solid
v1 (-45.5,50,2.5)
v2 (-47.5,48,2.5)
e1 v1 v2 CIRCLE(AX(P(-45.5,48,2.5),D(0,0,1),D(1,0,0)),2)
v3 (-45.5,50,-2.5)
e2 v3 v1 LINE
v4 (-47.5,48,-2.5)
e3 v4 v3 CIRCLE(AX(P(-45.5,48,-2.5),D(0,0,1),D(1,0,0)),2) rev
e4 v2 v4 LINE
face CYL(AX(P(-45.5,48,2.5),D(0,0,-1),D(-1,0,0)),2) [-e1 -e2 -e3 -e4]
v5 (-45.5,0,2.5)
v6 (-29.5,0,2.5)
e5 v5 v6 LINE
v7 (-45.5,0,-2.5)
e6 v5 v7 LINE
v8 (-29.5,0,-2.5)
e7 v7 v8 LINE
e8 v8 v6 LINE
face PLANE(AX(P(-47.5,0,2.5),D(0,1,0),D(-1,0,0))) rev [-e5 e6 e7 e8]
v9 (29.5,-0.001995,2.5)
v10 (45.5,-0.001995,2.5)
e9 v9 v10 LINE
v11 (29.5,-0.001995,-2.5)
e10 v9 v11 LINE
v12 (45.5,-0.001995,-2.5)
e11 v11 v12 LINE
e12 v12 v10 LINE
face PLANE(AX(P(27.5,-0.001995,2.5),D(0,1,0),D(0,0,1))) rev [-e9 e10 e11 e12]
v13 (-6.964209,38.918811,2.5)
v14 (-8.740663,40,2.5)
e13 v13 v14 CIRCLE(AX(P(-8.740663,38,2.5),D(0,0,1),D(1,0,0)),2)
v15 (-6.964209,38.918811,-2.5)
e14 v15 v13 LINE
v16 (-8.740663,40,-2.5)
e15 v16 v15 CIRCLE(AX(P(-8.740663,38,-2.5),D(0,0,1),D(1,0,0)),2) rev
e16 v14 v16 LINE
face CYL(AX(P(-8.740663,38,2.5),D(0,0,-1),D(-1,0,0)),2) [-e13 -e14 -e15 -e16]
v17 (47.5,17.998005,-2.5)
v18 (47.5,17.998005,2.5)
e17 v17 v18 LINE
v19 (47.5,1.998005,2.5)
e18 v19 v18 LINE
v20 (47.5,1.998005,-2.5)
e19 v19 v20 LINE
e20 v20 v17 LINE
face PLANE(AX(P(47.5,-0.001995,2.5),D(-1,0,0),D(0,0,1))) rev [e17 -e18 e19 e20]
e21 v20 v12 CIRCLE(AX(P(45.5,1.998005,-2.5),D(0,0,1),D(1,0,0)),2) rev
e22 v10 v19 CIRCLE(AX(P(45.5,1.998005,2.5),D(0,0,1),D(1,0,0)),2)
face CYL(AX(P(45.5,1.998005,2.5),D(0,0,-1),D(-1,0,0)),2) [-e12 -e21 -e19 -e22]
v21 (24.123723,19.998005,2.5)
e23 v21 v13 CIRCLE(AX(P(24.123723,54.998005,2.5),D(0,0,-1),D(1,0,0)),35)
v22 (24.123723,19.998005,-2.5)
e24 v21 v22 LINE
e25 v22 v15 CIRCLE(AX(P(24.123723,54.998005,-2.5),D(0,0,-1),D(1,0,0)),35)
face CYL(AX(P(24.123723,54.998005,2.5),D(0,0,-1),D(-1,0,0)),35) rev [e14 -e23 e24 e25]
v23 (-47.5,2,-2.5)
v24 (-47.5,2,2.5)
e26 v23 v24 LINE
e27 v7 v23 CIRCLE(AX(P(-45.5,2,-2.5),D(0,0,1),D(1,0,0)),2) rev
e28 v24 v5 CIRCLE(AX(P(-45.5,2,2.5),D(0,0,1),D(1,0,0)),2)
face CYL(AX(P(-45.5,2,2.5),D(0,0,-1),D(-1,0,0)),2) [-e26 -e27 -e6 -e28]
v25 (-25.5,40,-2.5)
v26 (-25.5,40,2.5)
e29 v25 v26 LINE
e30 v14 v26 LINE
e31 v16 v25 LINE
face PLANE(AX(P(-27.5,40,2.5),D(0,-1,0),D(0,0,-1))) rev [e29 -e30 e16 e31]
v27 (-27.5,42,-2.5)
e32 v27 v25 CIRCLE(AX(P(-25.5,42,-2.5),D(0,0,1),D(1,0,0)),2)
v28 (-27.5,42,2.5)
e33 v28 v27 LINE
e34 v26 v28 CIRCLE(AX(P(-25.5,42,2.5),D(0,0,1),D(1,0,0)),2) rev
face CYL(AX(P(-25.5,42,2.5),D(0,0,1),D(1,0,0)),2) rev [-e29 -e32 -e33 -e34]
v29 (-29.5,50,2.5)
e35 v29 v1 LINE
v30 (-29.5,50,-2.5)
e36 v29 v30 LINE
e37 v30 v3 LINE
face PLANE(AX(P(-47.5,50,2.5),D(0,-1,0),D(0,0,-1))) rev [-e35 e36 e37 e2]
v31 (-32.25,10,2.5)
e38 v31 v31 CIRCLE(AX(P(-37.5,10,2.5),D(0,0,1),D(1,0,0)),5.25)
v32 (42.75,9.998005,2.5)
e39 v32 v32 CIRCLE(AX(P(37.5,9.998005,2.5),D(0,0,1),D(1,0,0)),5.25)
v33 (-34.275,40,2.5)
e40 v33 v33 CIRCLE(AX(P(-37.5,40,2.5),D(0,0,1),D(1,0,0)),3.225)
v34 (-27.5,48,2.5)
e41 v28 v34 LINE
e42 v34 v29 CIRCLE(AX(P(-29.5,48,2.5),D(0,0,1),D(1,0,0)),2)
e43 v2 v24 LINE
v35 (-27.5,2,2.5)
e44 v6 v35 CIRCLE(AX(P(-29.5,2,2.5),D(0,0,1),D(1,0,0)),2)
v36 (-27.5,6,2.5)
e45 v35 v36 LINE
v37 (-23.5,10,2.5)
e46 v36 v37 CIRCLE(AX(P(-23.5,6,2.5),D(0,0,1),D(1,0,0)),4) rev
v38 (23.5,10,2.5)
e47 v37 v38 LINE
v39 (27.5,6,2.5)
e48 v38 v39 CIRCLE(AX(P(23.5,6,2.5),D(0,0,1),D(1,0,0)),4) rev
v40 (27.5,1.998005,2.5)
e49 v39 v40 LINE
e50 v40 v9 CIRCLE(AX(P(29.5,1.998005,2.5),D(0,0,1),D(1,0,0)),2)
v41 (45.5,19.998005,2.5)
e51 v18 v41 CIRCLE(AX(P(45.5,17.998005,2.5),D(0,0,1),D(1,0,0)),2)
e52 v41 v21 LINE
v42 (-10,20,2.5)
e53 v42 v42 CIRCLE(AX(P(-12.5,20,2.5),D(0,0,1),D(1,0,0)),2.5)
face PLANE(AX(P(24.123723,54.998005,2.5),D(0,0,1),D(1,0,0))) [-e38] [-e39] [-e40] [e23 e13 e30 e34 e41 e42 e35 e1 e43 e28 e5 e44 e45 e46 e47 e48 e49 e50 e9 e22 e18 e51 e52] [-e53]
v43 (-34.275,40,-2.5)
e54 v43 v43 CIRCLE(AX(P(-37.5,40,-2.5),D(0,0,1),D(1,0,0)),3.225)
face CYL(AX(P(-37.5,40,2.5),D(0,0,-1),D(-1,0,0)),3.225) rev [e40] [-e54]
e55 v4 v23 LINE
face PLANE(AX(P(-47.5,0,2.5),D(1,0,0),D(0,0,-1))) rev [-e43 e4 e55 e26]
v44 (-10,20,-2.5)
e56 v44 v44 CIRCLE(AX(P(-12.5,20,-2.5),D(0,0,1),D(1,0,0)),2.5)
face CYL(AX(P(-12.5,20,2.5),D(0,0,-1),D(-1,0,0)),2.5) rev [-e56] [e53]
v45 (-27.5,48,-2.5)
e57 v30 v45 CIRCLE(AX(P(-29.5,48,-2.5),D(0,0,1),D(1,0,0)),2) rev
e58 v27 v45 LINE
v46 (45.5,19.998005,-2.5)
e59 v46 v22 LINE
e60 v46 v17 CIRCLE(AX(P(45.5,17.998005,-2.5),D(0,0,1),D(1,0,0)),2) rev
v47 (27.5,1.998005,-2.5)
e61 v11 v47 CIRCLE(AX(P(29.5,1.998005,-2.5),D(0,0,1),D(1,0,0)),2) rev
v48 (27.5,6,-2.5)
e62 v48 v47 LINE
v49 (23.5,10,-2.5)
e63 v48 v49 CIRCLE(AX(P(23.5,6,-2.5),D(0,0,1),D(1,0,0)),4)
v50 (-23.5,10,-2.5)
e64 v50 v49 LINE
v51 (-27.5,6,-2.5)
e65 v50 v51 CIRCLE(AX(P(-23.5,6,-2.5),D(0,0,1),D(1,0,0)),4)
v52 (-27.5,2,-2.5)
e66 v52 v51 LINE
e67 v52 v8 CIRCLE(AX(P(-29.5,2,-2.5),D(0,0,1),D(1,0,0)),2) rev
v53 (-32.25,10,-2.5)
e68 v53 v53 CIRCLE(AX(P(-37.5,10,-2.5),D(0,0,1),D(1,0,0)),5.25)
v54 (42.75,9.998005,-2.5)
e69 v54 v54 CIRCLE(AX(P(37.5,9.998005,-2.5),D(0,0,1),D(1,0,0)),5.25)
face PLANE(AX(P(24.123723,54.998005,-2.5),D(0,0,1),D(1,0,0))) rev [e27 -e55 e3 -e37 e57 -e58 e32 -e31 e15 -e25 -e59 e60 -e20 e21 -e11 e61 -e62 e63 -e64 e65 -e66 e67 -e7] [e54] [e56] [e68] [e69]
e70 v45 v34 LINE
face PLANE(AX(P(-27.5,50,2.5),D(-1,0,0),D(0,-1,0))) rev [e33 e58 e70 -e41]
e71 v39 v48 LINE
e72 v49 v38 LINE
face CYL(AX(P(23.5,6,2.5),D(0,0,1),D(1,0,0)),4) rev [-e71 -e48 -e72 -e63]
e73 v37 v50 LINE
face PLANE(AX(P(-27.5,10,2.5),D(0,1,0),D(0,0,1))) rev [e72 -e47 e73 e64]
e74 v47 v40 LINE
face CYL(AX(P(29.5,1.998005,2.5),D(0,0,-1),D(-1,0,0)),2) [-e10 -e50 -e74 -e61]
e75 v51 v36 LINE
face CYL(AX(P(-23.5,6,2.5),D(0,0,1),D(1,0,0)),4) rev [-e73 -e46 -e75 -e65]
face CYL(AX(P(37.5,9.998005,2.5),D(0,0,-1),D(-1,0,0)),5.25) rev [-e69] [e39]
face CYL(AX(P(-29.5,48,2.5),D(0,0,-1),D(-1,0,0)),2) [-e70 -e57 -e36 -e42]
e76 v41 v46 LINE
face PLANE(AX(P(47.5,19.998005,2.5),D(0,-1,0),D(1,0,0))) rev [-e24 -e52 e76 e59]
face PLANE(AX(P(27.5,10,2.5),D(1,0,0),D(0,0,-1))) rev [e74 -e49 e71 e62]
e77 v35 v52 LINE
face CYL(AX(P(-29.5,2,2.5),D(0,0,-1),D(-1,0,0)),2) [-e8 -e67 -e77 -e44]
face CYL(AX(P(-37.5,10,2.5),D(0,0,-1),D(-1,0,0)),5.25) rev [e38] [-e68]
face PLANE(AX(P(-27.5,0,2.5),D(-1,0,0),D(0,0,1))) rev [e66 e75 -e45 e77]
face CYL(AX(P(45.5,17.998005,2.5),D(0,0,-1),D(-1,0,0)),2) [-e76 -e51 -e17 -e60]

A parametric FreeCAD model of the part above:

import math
import FreeCAD as App
import Part
import Sketcher
Q = App.Units.Quantity


def edges_at(feature, points):
    """Names of the edges that pass closest to the given points."""
    edges = feature.Shape.Edges
    near = lambda p: min(range(len(edges)), key=lambda i: edges[i].distToShape(Part.Vertex(*p))[0])
    return sorted({f"Edge{near(p) + 1}" for p in points})

doc = App.newDocument("Part")
body = doc.addObject("PartDesign::Body", "Body")

sketch1 = body.newObject("Sketcher::SketchObject", "Sketch")
sketch1.AttachmentSupport = (doc.getObject("XY_Plane"), [""])
sketch1.MapMode = "FlatFace"
sketch1.addGeometry(Part.LineSegment(App.Vector(-47.5, 50, 0), App.Vector(-47.5, 0, 0)), False)
sketch1.addGeometry(Part.LineSegment(App.Vector(-47.5, 0, 0), App.Vector(-27.5, 0, 0)), False)
sketch1.addGeometry(Part.LineSegment(App.Vector(-27.5, 0, 0), App.Vector(-27.5, 10, 0)), False)
sketch1.addGeometry(Part.LineSegment(App.Vector(-27.5, 10, 0), App.Vector(27.5, 10, 0)), False)
sketch1.addGeometry(Part.LineSegment(App.Vector(27.5, 10, 0), App.Vector(27.5, 0, 0)), False)
sketch1.addGeometry(Part.LineSegment(App.Vector(27.5, 0, 0), App.Vector(47.5, 0, 0)), False)
sketch1.addGeometry(Part.LineSegment(App.Vector(47.5, 0, 0), App.Vector(47.5, 20, 0)), False)
sketch1.addGeometry(Part.LineSegment(App.Vector(47.5, 20, 0), App.Vector(24.1, 20, 0)), False)
sketch1.addGeometry(Part.ArcOfCircle(Part.Circle(App.Vector(24.1, 55, 0), App.Vector(0, 0, 1), 35), math.radians(-155), math.radians(-90)), False)
sketch1.addGeometry(Part.LineSegment(App.Vector(-7.5, 40, 0), App.Vector(-27.5, 40, 0)), False)
sketch1.addGeometry(Part.LineSegment(App.Vector(-27.5, 40, 0), App.Vector(-27.5, 50, 0)), False)
sketch1.addGeometry(Part.LineSegment(App.Vector(-27.5, 50, 0), App.Vector(-47.5, 50, 0)), False)
sketch1.addGeometry(Part.Circle(App.Vector(37.5, 10, 0), App.Vector(0, 0, 1), 5.2), False)
sketch1.addGeometry(Part.Circle(App.Vector(-37.5, 10, 0), App.Vector(0, 0, 1), 5.2), False)
sketch1.addGeometry(Part.Circle(App.Vector(-12.5, 20, 0), App.Vector(0, 0, 1), 2.5), False)
sketch1.addGeometry(Part.Circle(App.Vector(-37.5, 40, 0), App.Vector(0, 0, 1), 3.2), False)
sketch1.addConstraint(Sketcher.Constraint("Coincident", 0, 2, 1, 1))
sketch1.addConstraint(Sketcher.Constraint("Coincident", 1, 2, 2, 1))
sketch1.addConstraint(Sketcher.Constraint("Coincident", 2, 2, 3, 1))
sketch1.addConstraint(Sketcher.Constraint("Coincident", 3, 2, 4, 1))
sketch1.addConstraint(Sketcher.Constraint("Coincident", 4, 2, 5, 1))
sketch1.addConstraint(Sketcher.Constraint("Coincident", 5, 2, 6, 1))
sketch1.addConstraint(Sketcher.Constraint("Coincident", 6, 2, 7, 1))
sketch1.addConstraint(Sketcher.Constraint("Tangent", 7, 2, 8, 2))
sketch1.addConstraint(Sketcher.Constraint("Coincident", 8, 1, 9, 1))
sketch1.addConstraint(Sketcher.Constraint("Coincident", 9, 2, 10, 1))
sketch1.addConstraint(Sketcher.Constraint("Coincident", 10, 2, 11, 1))
sketch1.addConstraint(Sketcher.Constraint("Coincident", 11, 2, 0, 1))
sketch1.addConstraint(Sketcher.Constraint("Vertical", 0))
sketch1.addConstraint(Sketcher.Constraint("Horizontal", 1))
sketch1.addConstraint(Sketcher.Constraint("Vertical", 2))
sketch1.addConstraint(Sketcher.Constraint("Horizontal", 3))
sketch1.addConstraint(Sketcher.Constraint("Vertical", 4))
sketch1.addConstraint(Sketcher.Constraint("Horizontal", 5))
sketch1.addConstraint(Sketcher.Constraint("Vertical", 6))
sketch1.addConstraint(Sketcher.Constraint("Horizontal", 7))
sketch1.addConstraint(Sketcher.Constraint("Horizontal", 9))
sketch1.addConstraint(Sketcher.Constraint("Vertical", 10))
sketch1.addConstraint(Sketcher.Constraint("Horizontal", 11))
sketch1.addConstraint(Sketcher.Constraint("Equal", 12, 13))
sketch1.addConstraint(Sketcher.Constraint("PointOnObject", 0, 2, -1))
sketch1.addConstraint(Sketcher.Constraint("Horizontal", 13, 3, 2, 2))
sketch1.addConstraint(Sketcher.Constraint("Horizontal", 15, 3, 8, 1))
sketch1.addConstraint(Sketcher.Constraint("Vertical", 13, 3, 15, 3))
sketch1.addConstraint(Sketcher.Constraint("Vertical", 2, 2, 9, 2))
sketch1.addConstraint(Sketcher.Constraint("Equal", 1, 5))
sketch1.addConstraint(Sketcher.Constraint("Equal", 5, 9))
sketch1.addConstraint(Sketcher.Constraint("Equal", 11, 6))
sketch1.addConstraint(Sketcher.Constraint("Equal", 2, 10))
sketch1.addConstraint(Sketcher.Constraint("Diameter", 14, Q("5 mm")))
sketch1.addConstraint(Sketcher.Constraint("Radius", 8, Q("35 mm")))
sketch1.addConstraint(Sketcher.Constraint("Diameter", 12, Q("10.5 mm")))
sketch1.addConstraint(Sketcher.Constraint("Diameter", 15, Q("6.45 mm")))
sketch1.addConstraint(Sketcher.Constraint("DistanceX", 1, 1, 1, 2, Q("20 mm")))
sketch1.addConstraint(Sketcher.Constraint("DistanceX", 3, 1, 3, 2, Q("55 mm")))
sketch1.addConstraint(Sketcher.Constraint("DistanceY", 0, 2, 0, 1, Q("50 mm")))
sketch1.addConstraint(Sketcher.Constraint("DistanceY", 2, 1, 2, 2, Q("10 mm")))
sketch1.addConstraint(Sketcher.Constraint("DistanceY", -1, 1, 14, 3, Q("20 mm")))
sketch1.addConstraint(Sketcher.Constraint("DistanceY", 12, 3, 8, 3, Q("45 mm")))
sketch1.addConstraint(Sketcher.Constraint("DistanceX", 13, 3, 12, 3, Q("75 mm")))
sketch1.addConstraint(Sketcher.Constraint("DistanceX", 13, 3, 14, 3, Q("25 mm")))
sketch1.addConstraint(Sketcher.Constraint("DistanceX", 0, 2, 13, 3, Q("10 mm")))
sketch1.addConstraint(Sketcher.Constraint("DistanceX", -1, 1, 12, 3, Q("37.5 mm")))
sketch1.addConstraint(Sketcher.Constraint("DistanceX", 7, 2, 7, 1, Q("23.376277 mm")))
pad1 = body.newObject("PartDesign::Pad", "Pad")
pad1.Profile = sketch1
pad1.Length = 5
pad1.Midplane = True
doc.recompute()

fillet = body.newObject("PartDesign::Fillet", "Fillet")
fillet.Base = (pad1, edges_at(pad1, [(27.5, 10, 0), (-27.5, 10, 0)]))
fillet.Radius = 4
doc.recompute()

fillet2 = body.newObject("PartDesign::Fillet", "Fillet001")
fillet2.Base = (fillet, edges_at(fillet, [
    (-47.5, 0, 0),
    (-47.5, 50, 0),
    (-27.5, 50, 0),
    (-27.5, 40, 0),
    (-7.5, 40, 0),
    (47.5, 19.998, 0),
    (47.5, -0.002, 0),
    (27.5, -0.002, 0),
    (-27.5, 0, 0),
]))
fillet2.Radius = 2

doc.recompute()
